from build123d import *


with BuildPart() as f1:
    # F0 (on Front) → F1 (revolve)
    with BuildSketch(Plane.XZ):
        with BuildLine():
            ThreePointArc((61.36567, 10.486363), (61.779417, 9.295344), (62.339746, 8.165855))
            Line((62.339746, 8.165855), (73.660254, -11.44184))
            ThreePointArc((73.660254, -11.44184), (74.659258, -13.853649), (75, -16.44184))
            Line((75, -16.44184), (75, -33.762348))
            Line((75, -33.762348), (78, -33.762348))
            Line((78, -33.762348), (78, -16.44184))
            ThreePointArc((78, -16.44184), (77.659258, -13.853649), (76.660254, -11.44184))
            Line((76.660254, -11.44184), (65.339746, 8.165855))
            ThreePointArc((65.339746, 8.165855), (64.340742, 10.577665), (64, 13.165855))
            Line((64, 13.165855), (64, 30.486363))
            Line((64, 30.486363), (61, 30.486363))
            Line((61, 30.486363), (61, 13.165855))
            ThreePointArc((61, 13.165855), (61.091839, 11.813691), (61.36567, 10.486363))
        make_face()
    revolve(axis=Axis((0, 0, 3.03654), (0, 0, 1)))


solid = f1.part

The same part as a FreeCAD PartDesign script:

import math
import FreeCAD as App
import Part
import Sketcher
from FreeCAD import Vector
Q = App.Units.Quantity

doc = App.newDocument("Part")
body = doc.addObject("PartDesign::Body", "Body")

sketch1 = body.newObject("Sketcher::SketchObject", "Sketch")
sketch1.AttachmentSupport = (doc.getObject("XZ_Plane"), [""])
sketch1.MapMode = "FlatFace"
sketch1.addGeometry([
    Part.ArcOfCircle(Part.Circle(Vector(70.999939, 13.165828, 0), Vector(0, 0, 1), 9.999933), math.radians(-164.457787), math.radians(-149.99996)),
    Part.LineSegment(Vector(62.339746, 8.165855, 0), Vector(73.660254, -11.44184, 0)),
    Part.ArcOfCircle(Part.Circle(Vector(64.999997, -16.441841, 0), Vector(0, 0, 1), 10.000003), math.radians(0.000005), math.radians(29.999996)),
    Part.LineSegment(Vector(75, -16.44184, 0), Vector(75, -33.762348, 0)),
    Part.LineSegment(Vector(75, -33.762348, 0), Vector(78, -33.762348, 0)),
    Part.LineSegment(Vector(78, -33.762348, 0), Vector(78, -16.44184, 0)),
    Part.ArcOfCircle(Part.Circle(Vector(67.999997, -16.441841, 0), Vector(0, 0, 1), 10.000003), math.radians(0.000005), math.radians(29.999996)),
    Part.LineSegment(Vector(76.660254, -11.44184, 0), Vector(65.339746, 8.165855, 0)),
    Part.ArcOfCircle(Part.Circle(Vector(74.00001, 13.165858, 0), Vector(0, 0, 1), 10.00001), math.radians(-179.999984), math.radians(-150.000015)),
    Part.LineSegment(Vector(64, 13.165855, 0), Vector(64, 30.486363, 0)),
    Part.LineSegment(Vector(64, 30.486363, 0), Vector(61, 30.486363, 0)),
    Part.LineSegment(Vector(61, 30.486363, 0), Vector(61, 13.165855, 0)),
    Part.ArcOfCircle(Part.Circle(Vector(70.999968, 13.165852, 0), Vector(0, 0, 1), 9.999968), math.radians(179.999983), math.radians(195.542303)),
], False)
sketch1.addConstraint([
    Sketcher.Constraint("Coincident", 0, 2, 1, 1),
    Sketcher.Constraint("Coincident", 1, 2, 2, 2),
    Sketcher.Constraint("Coincident", 2, 1, 3, 1),
    Sketcher.Constraint("Coincident", 3, 2, 4, 1),
    Sketcher.Constraint("Coincident", 4, 2, 5, 1),
    Sketcher.Constraint("Coincident", 5, 2, 6, 1),
    Sketcher.Constraint("Coincident", 6, 2, 7, 1),
    Sketcher.Constraint("Coincident", 7, 2, 8, 2),
    Sketcher.Constraint("Coincident", 8, 1, 9, 1),
    Sketcher.Constraint("Coincident", 9, 2, 10, 1),
    Sketcher.Constraint("Coincident", 10, 2, 11, 1),
    Sketcher.Constraint("Coincident", 11, 2, 12, 1),
    Sketcher.Constraint("Coincident", 12, 2, 0, 1),
    Sketcher.Constraint("Vertical", 3),
    Sketcher.Constraint("Horizontal", 4),
    Sketcher.Constraint("Vertical", 5),
    Sketcher.Constraint("Vertical", 9),
    Sketcher.Constraint("Horizontal", 10),
    Sketcher.Constraint("Vertical", 11),
    Sketcher.Constraint("DistanceX", 4, 1, 4, 2, Q("3 mm")),
    Sketcher.Constraint("DistanceX", 10, 2, 10, 1, Q("3 mm")),
    Sketcher.Constraint("DistanceX", -1, 1, 2, 1, Q("75 mm")),
    Sketcher.Constraint("DistanceX", -1, 1, 8, 1, Q("64 mm")),
    Sketcher.Constraint("DistanceX", 2, 3, 6, 3, Q("3 mm")),
    Sketcher.Constraint("DistanceY", 6, 3, 1, 2, Q("5.000001 mm")),
    Sketcher.Constraint("DistanceY", 2, 3, 1, 2, Q("5.000001 mm")),
    Sketcher.Constraint("DistanceY", 2, 1, 1, 2, Q("5 mm")),
    Sketcher.Constraint("DistanceY", 5, 2, 1, 2, Q("5 mm")),
    Sketcher.Constraint("DistanceX", 1, 2, 6, 2, Q("3 mm")),
    Sketcher.Constraint("DistanceX", 0, 2, 7, 2, Q("3 mm")),
    Sketcher.Constraint("DistanceY", 7, 2, 8, 1, Q("5 mm")),
    Sketcher.Constraint("DistanceY", 0, 2, 8, 1, Q("5 mm")),
    Sketcher.Constraint("DistanceY", 0, 2, 11, 2, Q("5 mm")),
    Sketcher.Constraint("Radius", 8, Q("10.00001 mm")),
    Sketcher.Constraint("Radius", 0, Q("9.999933 mm")),
    Sketcher.Constraint("Radius", 2, Q("10.000003 mm")),
    Sketcher.Constraint("Radius", 12, Q("9.999968 mm")),
    Sketcher.Constraint("DistanceY", 3, 2, 3, 1, Q("17.320508 mm")),
    Sketcher.Constraint("DistanceY", 9, 1, 9, 2, Q("17.320508 mm")),
    Sketcher.Constraint("DistanceY", 6, 3, 8, 3, Q("29.607699 mm")),
    Sketcher.Constraint("DistanceX", -1, 1, 0, 3, Q("70.999939 mm")),
    Sketcher.Constraint("DistanceY", 2, 3, -1, 1, Q("16.441841 mm")),
    Sketcher.Constraint("DistanceX", -1, 1, 12, 2, Q("61.36567 mm")),
    Sketcher.Constraint("DistanceX", 0, 2, 12, 3, Q("8.660222 mm")),
])
revolution = body.newObject("PartDesign::Revolution", "Revolution")
revolution.Profile = sketch1
revolution.ReferenceAxis = (sketch1, ["V_Axis"])
revolution.Angle = 360

doc.recompute()
